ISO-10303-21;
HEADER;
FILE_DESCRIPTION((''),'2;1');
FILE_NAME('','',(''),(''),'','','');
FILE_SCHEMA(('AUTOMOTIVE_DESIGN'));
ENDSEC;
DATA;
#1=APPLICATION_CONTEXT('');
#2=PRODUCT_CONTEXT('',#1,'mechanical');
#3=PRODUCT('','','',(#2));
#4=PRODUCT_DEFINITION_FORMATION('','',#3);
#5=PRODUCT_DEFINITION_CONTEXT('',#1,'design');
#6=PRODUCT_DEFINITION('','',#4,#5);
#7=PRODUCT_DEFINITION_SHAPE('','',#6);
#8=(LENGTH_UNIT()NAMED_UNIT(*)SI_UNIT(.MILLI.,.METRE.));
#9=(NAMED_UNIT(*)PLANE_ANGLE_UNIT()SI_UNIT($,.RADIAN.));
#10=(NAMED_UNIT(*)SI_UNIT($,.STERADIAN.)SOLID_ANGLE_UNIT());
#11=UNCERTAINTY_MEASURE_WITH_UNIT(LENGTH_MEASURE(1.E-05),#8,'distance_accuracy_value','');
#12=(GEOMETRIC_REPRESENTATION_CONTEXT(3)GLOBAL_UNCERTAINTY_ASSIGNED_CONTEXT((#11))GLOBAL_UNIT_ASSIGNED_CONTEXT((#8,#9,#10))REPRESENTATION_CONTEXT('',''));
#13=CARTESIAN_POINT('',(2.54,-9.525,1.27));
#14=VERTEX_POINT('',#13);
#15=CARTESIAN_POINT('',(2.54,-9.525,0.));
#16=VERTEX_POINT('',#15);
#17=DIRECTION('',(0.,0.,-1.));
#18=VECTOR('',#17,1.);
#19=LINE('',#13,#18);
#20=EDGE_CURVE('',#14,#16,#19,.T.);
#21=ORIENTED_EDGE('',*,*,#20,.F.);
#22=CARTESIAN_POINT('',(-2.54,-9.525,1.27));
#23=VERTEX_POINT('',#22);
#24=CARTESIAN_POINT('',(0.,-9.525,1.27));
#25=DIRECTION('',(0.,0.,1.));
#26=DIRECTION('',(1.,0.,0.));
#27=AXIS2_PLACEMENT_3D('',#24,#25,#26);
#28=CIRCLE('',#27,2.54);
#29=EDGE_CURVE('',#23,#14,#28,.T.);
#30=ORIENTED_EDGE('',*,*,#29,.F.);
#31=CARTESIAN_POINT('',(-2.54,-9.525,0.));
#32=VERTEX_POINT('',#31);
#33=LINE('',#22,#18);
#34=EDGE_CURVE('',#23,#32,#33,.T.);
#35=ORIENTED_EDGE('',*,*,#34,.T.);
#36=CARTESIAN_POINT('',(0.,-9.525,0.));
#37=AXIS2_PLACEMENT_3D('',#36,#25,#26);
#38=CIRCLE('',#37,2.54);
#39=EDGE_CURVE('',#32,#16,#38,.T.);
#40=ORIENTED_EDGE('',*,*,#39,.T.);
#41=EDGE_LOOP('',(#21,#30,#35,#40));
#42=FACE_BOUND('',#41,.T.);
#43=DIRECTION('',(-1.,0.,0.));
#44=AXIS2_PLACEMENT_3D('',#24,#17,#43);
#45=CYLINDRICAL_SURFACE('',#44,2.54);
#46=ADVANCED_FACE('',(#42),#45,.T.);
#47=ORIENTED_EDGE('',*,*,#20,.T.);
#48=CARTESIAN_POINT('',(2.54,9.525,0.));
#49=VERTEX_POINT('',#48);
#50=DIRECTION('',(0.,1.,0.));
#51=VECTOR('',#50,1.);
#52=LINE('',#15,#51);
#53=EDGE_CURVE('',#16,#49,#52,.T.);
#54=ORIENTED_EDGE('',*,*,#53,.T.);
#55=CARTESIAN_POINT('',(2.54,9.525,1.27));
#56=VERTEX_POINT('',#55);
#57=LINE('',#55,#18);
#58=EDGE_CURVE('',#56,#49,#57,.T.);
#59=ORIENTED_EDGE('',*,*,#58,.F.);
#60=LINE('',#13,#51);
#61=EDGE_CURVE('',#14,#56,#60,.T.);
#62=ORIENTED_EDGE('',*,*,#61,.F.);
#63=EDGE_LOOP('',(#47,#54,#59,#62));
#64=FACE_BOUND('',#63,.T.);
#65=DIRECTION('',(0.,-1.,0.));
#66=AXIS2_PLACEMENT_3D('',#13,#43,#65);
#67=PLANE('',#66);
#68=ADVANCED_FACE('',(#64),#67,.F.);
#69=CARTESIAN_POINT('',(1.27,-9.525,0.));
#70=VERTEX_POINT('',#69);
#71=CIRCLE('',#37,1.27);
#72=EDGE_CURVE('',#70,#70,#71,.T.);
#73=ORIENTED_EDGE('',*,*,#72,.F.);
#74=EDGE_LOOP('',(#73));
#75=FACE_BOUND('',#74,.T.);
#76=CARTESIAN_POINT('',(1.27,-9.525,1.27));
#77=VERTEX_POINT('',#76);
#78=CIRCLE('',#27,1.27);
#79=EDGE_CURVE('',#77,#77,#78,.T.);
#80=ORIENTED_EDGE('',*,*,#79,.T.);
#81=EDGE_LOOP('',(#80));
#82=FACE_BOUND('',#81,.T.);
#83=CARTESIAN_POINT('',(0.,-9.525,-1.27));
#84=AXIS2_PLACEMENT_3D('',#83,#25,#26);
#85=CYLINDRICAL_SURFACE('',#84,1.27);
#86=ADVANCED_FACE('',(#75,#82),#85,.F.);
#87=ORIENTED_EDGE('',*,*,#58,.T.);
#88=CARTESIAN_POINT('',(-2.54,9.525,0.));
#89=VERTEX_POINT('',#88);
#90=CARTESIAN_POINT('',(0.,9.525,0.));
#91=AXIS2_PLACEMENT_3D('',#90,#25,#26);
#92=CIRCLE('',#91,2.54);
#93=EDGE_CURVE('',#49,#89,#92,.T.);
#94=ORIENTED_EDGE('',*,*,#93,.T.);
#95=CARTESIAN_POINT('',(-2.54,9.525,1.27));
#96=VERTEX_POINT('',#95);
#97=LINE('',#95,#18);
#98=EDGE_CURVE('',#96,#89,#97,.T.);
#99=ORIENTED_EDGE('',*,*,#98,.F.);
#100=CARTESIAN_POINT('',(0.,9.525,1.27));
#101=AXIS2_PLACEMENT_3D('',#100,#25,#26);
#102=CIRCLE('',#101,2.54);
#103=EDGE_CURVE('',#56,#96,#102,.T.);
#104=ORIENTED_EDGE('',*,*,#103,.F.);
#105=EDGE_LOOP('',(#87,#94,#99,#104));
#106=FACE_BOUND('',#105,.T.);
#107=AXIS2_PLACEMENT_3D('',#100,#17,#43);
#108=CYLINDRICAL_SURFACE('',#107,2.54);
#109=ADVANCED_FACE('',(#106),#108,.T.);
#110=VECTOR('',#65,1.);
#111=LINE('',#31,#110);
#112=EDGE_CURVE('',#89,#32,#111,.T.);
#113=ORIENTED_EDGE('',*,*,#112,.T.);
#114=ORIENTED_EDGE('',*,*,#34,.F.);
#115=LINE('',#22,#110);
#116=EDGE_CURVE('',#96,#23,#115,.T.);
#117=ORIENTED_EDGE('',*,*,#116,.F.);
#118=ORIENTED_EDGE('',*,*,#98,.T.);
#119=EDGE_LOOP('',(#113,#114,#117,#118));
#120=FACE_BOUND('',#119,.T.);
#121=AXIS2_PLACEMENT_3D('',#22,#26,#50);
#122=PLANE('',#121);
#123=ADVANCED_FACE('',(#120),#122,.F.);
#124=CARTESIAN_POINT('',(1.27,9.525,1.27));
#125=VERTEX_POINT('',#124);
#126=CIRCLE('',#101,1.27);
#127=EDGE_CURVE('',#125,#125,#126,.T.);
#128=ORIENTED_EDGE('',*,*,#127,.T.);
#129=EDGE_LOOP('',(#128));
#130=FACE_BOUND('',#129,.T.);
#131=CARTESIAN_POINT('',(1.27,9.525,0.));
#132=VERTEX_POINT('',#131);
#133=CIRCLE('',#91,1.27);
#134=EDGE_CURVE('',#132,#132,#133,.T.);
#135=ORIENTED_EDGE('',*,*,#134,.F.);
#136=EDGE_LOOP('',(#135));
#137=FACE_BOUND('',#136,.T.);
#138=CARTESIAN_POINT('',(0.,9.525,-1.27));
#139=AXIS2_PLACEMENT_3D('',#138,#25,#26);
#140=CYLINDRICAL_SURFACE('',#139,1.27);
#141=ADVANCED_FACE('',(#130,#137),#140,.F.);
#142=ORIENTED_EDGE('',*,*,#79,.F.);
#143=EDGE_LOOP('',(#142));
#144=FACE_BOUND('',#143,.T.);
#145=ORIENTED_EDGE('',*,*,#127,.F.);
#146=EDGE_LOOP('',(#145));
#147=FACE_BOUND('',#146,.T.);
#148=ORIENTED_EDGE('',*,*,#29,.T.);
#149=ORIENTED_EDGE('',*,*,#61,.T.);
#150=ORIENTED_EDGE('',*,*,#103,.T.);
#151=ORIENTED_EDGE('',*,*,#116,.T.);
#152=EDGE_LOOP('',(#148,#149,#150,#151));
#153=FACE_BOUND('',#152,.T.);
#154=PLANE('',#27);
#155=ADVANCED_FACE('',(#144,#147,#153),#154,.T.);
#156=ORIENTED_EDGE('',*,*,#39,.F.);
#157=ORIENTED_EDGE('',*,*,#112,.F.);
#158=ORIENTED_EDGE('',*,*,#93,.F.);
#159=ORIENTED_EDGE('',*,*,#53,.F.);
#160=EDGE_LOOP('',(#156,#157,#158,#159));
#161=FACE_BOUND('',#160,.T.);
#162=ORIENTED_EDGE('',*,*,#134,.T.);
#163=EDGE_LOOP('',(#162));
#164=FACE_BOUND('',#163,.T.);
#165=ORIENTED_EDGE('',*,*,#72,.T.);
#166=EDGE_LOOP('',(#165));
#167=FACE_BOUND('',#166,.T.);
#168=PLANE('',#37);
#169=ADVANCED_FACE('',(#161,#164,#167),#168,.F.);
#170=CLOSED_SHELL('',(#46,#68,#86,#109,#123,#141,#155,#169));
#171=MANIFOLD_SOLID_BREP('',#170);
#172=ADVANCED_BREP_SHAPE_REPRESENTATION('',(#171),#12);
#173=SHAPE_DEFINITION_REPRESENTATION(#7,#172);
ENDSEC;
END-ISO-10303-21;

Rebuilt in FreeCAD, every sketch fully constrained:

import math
import FreeCAD as App
import Part
import Sketcher
Q = App.Units.Quantity

doc = App.newDocument("Part")
body = doc.addObject("PartDesign::Body", "Body")

sketch1 = body.newObject("Sketcher::SketchObject", "Sketch")
sketch1.AttachmentSupport = (doc.getObject("XY_Plane"), [""])
sketch1.MapMode = "FlatFace"
sketch1.addGeometry([
    Part.LineSegment(App.Vector(-2.54, 9.525, 0), App.Vector(-2.54, -9.525, 0)),
    Part.ArcOfCircle(Part.Circle(App.Vector(0, -9.525, 0), App.Vector(0, 0, 1), 2.54), math.radians(180), math.radians(360)),
    Part.LineSegment(App.Vector(2.54, -9.525, 0), App.Vector(2.54, 9.525, 0)),
    Part.ArcOfCircle(Part.Circle(App.Vector(0, 9.525, 0), App.Vector(0, 0, 1), 2.54), math.radians(0), math.radians(180)),
], False)
sketch1.addConstraint([
    Sketcher.Constraint("Tangent", 0, 2, 1, 1),
    Sketcher.Constraint("Tangent", 1, 2, 2, 1),
    Sketcher.Constraint("Tangent", 2, 2, 3, 1),
    Sketcher.Constraint("Tangent", 3, 2, 0, 1),
    Sketcher.Constraint("Vertical", 0),
    Sketcher.Constraint("Vertical", 2),
    Sketcher.Constraint("Symmetric", 1, 3, 3, 3, -1, 1),
    Sketcher.Constraint("Radius", 1, Q("0.1 in")),
    Sketcher.Constraint("DistanceY", 0, 2, 0, 1, Q("0.75 in")),
])
pad1 = body.newObject("PartDesign::Pad", "Pad")
pad1.Profile = sketch1
pad1.Length = Q("0.05 in")

sketch2 = body.newObject("Sketcher::SketchObject", "Sketch001")
sketch2.AttachmentSupport = (doc.getObject("XY_Plane"), [""])
sketch2.MapMode = "FlatFace"
sketch2.AttachmentOffset = App.Placement(App.Vector(0, 0, 0.05 * 25.4), App.Rotation())
sketch2.addGeometry([
    Part.Circle(App.Vector(0, 9.525, 0), App.Vector(0, 0, 1), 1.27),
    Part.Circle(App.Vector(0, -9.525, 0), App.Vector(0, 0, 1), 1.27),
], False)
sketch2.addConstraint([
    Sketcher.Constraint("Equal", 0, 1),
    Sketcher.Constraint("Symmetric", 0, 3, 1, 3, -1, 1),
    Sketcher.Constraint("PointOnObject", 0, 3, -2),
    Sketcher.Constraint("Diameter", 0, Q("0.1 in")),
    Sketcher.Constraint("DistanceY", 1, 3, 0, 3, Q("0.75 in")),
])
pocket1 = body.newObject("PartDesign::Pocket", "Pocket")
pocket1.Profile = sketch2
pocket1.Length = Q("0.1 in")

doc.recompute()
